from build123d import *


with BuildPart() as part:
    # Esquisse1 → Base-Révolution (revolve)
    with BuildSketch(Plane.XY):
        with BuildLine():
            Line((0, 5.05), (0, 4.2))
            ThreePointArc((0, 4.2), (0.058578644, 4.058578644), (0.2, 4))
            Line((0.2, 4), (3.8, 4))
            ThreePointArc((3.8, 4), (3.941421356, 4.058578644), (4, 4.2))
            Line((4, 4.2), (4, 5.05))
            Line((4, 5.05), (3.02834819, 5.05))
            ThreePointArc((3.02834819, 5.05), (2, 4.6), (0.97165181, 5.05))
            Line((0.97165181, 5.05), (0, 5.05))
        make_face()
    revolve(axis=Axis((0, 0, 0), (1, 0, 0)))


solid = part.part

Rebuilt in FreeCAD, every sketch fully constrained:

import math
import FreeCAD as App
import Part
import Sketcher

V = App.Vector

doc = App.newDocument("Part")
body = doc.addObject("PartDesign::Body", "Body")

sketch1 = body.newObject("Sketcher::SketchObject", "Sketch")
sketch1.AttachmentSupport = (doc.getObject("XY_Plane"), [""])
sketch1.MapMode = "FlatFace"
sketch1.addGeometry(Part.LineSegment(V(0, 5.05, 0), V(0, 4.2, 0)), False)
sketch1.addGeometry(Part.ArcOfCircle(Part.Circle(V(0.2, 4.2, 0), V(0, 0, 1), 0.2), math.radians(-180), math.radians(-90)), False)
sketch1.addGeometry(Part.LineSegment(V(0.2, 4, 0), V(3.8, 4, 0)), False)
sketch1.addGeometry(Part.ArcOfCircle(Part.Circle(V(3.8, 4.2, 0), V(0, 0, 1), 0.2), math.radians(-90), math.radians(0)), False)
sketch1.addGeometry(Part.LineSegment(V(4, 4.2, 0), V(4, 5.05, 0)), False)
sketch1.addGeometry(Part.LineSegment(V(4, 5.05, 0), V(3.03, 5.05, 0)), False)
sketch1.addGeometry(Part.ArcOfCircle(Part.Circle(V(2, 6, 0), V(0, 0, 1), 1.4), math.radians(-137), math.radians(-43)), False)
sketch1.addGeometry(Part.LineSegment(V(0.97, 5.05, 0), V(0, 5.05, 0)), False)
sketch1.addConstraint(Sketcher.Constraint("Tangent", 0, 2, 1, 1))
sketch1.addConstraint(Sketcher.Constraint("Tangent", 1, 2, 2, 1))
sketch1.addConstraint(Sketcher.Constraint("Tangent", 2, 2, 3, 1))
sketch1.addConstraint(Sketcher.Constraint("Tangent", 3, 2, 4, 1))
sketch1.addConstraint(Sketcher.Constraint("Coincident", 4, 2, 5, 1))
sketch1.addConstraint(Sketcher.Constraint("Coincident", 5, 2, 6, 2))
sketch1.addConstraint(Sketcher.Constraint("Coincident", 6, 1, 7, 1))
sketch1.addConstraint(Sketcher.Constraint("Coincident", 7, 2, 0, 1))
sketch1.addConstraint(Sketcher.Constraint("Vertical", 0))
sketch1.addConstraint(Sketcher.Constraint("Horizontal", 2))
sketch1.addConstraint(Sketcher.Constraint("Vertical", 4))
sketch1.addConstraint(Sketcher.Constraint("Horizontal", 5))
sketch1.addConstraint(Sketcher.Constraint("Horizontal", 7))
sketch1.addConstraint(Sketcher.Constraint("Equal", 1, 3))
sketch1.addConstraint(Sketcher.Constraint("PointOnObject", 0, 2, -2))
sketch1.addConstraint(Sketcher.Constraint("Horizontal", 5, 2, 6, 1))
sketch1.addConstraint(Sketcher.Constraint("Equal", 5, 7))
sketch1.addConstraint(Sketcher.Constraint("Radius", 1, 0.2))
sketch1.addConstraint(Sketcher.Constraint("Radius", 6, 1.4))
sketch1.addConstraint(Sketcher.Constraint("DistanceX", 2, 1, 2, 2, 3.6))
sketch1.addConstraint(Sketcher.Constraint("DistanceY", -1, 1, 6, 3, 6.0))
sketch1.addConstraint(Sketcher.Constraint("DistanceY", -1, 1, 1, 2, 4.0))
sketch1.addConstraint(Sketcher.Constraint("DistanceY", 0, 2, 0, 1, 0.85))
revolution = body.newObject("PartDesign::Revolution", "Revolution")
revolution.Profile = sketch1
revolution.ReferenceAxis = (sketch1, ["H_Axis"])
revolution.Angle = 360

doc.recompute()
